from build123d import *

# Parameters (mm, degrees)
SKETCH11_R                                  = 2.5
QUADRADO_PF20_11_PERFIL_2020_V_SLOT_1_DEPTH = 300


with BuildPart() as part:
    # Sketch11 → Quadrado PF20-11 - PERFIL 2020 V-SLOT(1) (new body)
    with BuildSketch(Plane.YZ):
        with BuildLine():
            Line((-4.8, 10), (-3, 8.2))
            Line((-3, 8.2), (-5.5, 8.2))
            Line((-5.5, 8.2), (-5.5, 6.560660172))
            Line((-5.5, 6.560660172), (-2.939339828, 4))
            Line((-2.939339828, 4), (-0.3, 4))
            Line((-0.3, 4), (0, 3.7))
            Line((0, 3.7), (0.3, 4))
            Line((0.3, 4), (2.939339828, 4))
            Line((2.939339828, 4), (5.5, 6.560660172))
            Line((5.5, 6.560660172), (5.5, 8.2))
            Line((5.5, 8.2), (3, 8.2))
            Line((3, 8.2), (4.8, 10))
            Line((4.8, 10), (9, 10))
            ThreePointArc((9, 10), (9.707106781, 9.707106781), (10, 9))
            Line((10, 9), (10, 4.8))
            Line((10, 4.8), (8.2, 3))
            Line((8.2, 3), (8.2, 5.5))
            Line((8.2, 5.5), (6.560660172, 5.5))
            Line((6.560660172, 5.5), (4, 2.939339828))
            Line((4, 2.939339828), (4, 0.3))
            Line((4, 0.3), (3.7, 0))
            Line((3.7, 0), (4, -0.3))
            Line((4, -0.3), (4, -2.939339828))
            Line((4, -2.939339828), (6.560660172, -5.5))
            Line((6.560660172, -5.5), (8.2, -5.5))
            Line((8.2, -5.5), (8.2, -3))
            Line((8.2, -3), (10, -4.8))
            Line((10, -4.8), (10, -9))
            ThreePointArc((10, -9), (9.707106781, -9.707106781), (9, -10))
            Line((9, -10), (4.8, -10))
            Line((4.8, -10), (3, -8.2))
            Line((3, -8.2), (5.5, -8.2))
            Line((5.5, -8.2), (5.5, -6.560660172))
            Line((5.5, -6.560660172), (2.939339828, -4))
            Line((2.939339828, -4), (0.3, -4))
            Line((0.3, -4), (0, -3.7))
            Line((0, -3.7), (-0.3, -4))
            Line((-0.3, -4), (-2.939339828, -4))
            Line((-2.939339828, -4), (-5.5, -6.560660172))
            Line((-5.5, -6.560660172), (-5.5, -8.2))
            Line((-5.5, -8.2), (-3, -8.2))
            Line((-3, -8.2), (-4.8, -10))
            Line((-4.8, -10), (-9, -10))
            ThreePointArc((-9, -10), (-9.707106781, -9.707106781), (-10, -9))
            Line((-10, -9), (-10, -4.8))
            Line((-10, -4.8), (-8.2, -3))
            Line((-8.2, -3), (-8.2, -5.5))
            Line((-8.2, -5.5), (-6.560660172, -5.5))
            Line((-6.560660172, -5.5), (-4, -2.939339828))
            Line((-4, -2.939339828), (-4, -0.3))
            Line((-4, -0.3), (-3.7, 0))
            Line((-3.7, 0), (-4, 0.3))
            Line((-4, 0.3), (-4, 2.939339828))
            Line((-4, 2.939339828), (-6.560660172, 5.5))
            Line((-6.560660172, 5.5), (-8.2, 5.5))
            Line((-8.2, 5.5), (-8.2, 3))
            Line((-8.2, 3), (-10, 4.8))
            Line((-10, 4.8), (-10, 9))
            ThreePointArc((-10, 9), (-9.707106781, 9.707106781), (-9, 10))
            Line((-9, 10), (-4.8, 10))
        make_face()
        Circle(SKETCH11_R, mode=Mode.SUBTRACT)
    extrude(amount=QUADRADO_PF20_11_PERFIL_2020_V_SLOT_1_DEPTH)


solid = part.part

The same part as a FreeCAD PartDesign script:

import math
import FreeCAD as App
import Part
import Sketcher

V = App.Vector
Q = App.Units.Quantity

doc = App.newDocument("Part")
body = doc.addObject("PartDesign::Body", "Body")

# Sketch on YZ plane
sketch1 = doc.addObject("Sketcher::SketchObject", "Sketch")
body.addObject(sketch1)
sketch1.AttachmentSupport = (doc.YZ_Plane, [""])
sketch1.MapMode = "FlatFace"
sketch1.addGeometry(Part.LineSegment(V(-3, 8.2, 0), V(-4.8, 10, 0)), False)
sketch1.addGeometry(Part.LineSegment(V(-4.8, 10, 0), V(-9, 10, 0)), False)
sketch1.addGeometry(Part.ArcOfCircle(Part.Circle(V(-9, 9, 0), V(0, 0, 1), 1), math.radians(90), math.radians(180)), False)
sketch1.addGeometry(Part.LineSegment(V(-10, 9, 0), V(-10, 4.8, 0)), False)
sketch1.addGeometry(Part.LineSegment(V(-10, 4.8, 0), V(-8.2, 3, 0)), False)
sketch1.addGeometry(Part.LineSegment(V(-8.2, 3, 0), V(-8.2, 5.5, 0)), False)
sketch1.addGeometry(Part.LineSegment(V(-8.2, 5.5, 0), V(-6.56, 5.5, 0)), False)
sketch1.addGeometry(Part.LineSegment(V(-6.56, 5.5, 0), V(-4, 2.94, 0)), False)
sketch1.addGeometry(Part.LineSegment(V(-4, 2.94, 0), V(-4, 0.3, 0)), False)
sketch1.addGeometry(Part.LineSegment(V(-4, 0.3, 0), V(-3.7, 0, 0)), False)
sketch1.addGeometry(Part.LineSegment(V(-3.7, 0, 0), V(-4, -0.3, 0)), False)
sketch1.addGeometry(Part.LineSegment(V(-4, -0.3, 0), V(-4, -2.94, 0)), False)
sketch1.addGeometry(Part.LineSegment(V(-4, -2.94, 0), V(-6.56, -5.5, 0)), False)
sketch1.addGeometry(Part.LineSegment(V(-6.56, -5.5, 0), V(-8.2, -5.5, 0)), False)
sketch1.addGeometry(Part.LineSegment(V(-8.2, -5.5, 0), V(-8.2, -3, 0)), False)
sketch1.addGeometry(Part.LineSegment(V(-8.2, -3, 0), V(-10, -4.8, 0)), False)
sketch1.addGeometry(Part.LineSegment(V(-10, -4.8, 0), V(-10, -9, 0)), False)
sketch1.addGeometry(Part.ArcOfCircle(Part.Circle(V(-9, -9, 0), V(0, 0, 1), 1), math.radians(-180), math.radians(-90)), False)
sketch1.addGeometry(Part.LineSegment(V(-9, -10, 0), V(-4.8, -10, 0)), False)
sketch1.addGeometry(Part.LineSegment(V(-4.8, -10, 0), V(-3, -8.2, 0)), False)
sketch1.addGeometry(Part.LineSegment(V(-3, -8.2, 0), V(-5.5, -8.2, 0)), False)
sketch1.addGeometry(Part.LineSegment(V(-5.5, -8.2, 0), V(-5.5, -6.56, 0)), False)
sketch1.addGeometry(Part.LineSegment(V(-5.5, -6.56, 0), V(-2.94, -4, 0)), False)
sketch1.addGeometry(Part.LineSegment(V(-2.94, -4, 0), V(-0.3, -4, 0)), False)
sketch1.addGeometry(Part.LineSegment(V(-0.3, -4, 0), V(0, -3.7, 0)), False)
sketch1.addGeometry(Part.LineSegment(V(0, -3.7, 0), V(0.3, -4, 0)), False)
sketch1.addGeometry(Part.LineSegment(V(0.3, -4, 0), V(2.94, -4, 0)), False)
sketch1.addGeometry(Part.LineSegment(V(2.94, -4, 0), V(5.5, -6.56, 0)), False)
sketch1.addGeometry(Part.LineSegment(V(5.5, -6.56, 0), V(5.5, -8.2, 0)), False)
sketch1.addGeometry(Part.LineSegment(V(5.5, -8.2, 0), V(3, -8.2, 0)), False)
sketch1.addGeometry(Part.LineSegment(V(3, -8.2, 0), V(4.8, -10, 0)), False)
sketch1.addGeometry(Part.LineSegment(V(4.8, -10, 0), V(9, -10, 0)), False)
sketch1.addGeometry(Part.ArcOfCircle(Part.Circle(V(9, -9, 0), V(0, 0, 1), 1), math.radians(-90), math.radians(0)), False)
sketch1.addGeometry(Part.LineSegment(V(10, -9, 0), V(10, -4.8, 0)), False)
sketch1.addGeometry(Part.LineSegment(V(10, -4.8, 0), V(8.2, -3, 0)), False)
sketch1.addGeometry(Part.LineSegment(V(8.2, -3, 0), V(8.2, -5.5, 0)), False)
sketch1.addGeometry(Part.LineSegment(V(8.2, -5.5, 0), V(6.56, -5.5, 0)), False)
sketch1.addGeometry(Part.LineSegment(V(6.56, -5.5, 0), V(4, -2.94, 0)), False)
sketch1.addGeometry(Part.LineSegment(V(4, -2.94, 0), V(4, -0.3, 0)), False)
sketch1.addGeometry(Part.LineSegment(V(4, -0.3, 0), V(3.7, 0, 0)), False)
sketch1.addGeometry(Part.LineSegment(V(3.7, 0, 0), V(4, 0.3, 0)), False)
sketch1.addGeometry(Part.LineSegment(V(4, 0.3, 0), V(4, 2.94, 0)), False)
sketch1.addGeometry(Part.LineSegment(V(4, 2.94, 0), V(6.56, 5.5, 0)), False)
sketch1.addGeometry(Part.LineSegment(V(6.56, 5.5, 0), V(8.2, 5.5, 0)), False)
sketch1.addGeometry(Part.LineSegment(V(8.2, 5.5, 0), V(8.2, 3, 0)), False)
sketch1.addGeometry(Part.LineSegment(V(8.2, 3, 0), V(10, 4.8, 0)), False)
sketch1.addGeometry(Part.LineSegment(V(10, 4.8, 0), V(10, 9, 0)), False)
sketch1.addGeometry(Part.ArcOfCircle(Part.Circle(V(9, 9, 0), V(0, 0, 1), 1), math.radians(0), math.radians(90)), False)
sketch1.addGeometry(Part.LineSegment(V(9, 10, 0), V(4.8, 10, 0)), False)
sketch1.addGeometry(Part.LineSegment(V(4.8, 10, 0), V(3, 8.2, 0)), False)
sketch1.addGeometry(Part.LineSegment(V(3, 8.2, 0), V(5.5, 8.2, 0)), False)
sketch1.addGeometry(Part.LineSegment(V(5.5, 8.2, 0), V(5.5, 6.56, 0)), False)
sketch1.addGeometry(Part.LineSegment(V(5.5, 6.56, 0), V(2.94, 4, 0)), False)
sketch1.addGeometry(Part.LineSegment(V(2.94, 4, 0), V(0.3, 4, 0)), False)
sketch1.addGeometry(Part.LineSegment(V(0.3, 4, 0), V(0, 3.7, 0)), False)
sketch1.addGeometry(Part.LineSegment(V(0, 3.7, 0), V(-0.3, 4, 0)), False)
sketch1.addGeometry(Part.LineSegment(V(-0.3, 4, 0), V(-2.94, 4, 0)), False)
sketch1.addGeometry(Part.LineSegment(V(-2.94, 4, 0), V(-5.5, 6.56, 0)), False)
sketch1.addGeometry(Part.LineSegment(V(-5.5, 6.56, 0), V(-5.5, 8.2, 0)), False)
sketch1.addGeometry(Part.LineSegment(V(-5.5, 8.2, 0), V(-3, 8.2, 0)), False)
sketch1.addGeometry(Part.Circle(V(0, 0, 0), V(0, 0, 1), 2.5), False)
sketch1.addConstraint(Sketcher.Constraint("Coincident", 0, 2, 1, 1))
sketch1.addConstraint(Sketcher.Constraint("Tangent", 1, 2, 2, 1))
sketch1.addConstraint(Sketcher.Constraint("Tangent", 2, 2, 3, 1))
sketch1.addConstraint(Sketcher.Constraint("Coincident", 3, 2, 4, 1))
sketch1.addConstraint(Sketcher.Constraint("Coincident", 4, 2, 5, 1))
sketch1.addConstraint(Sketcher.Constraint("Coincident", 5, 2, 6, 1))
sketch1.addConstraint(Sketcher.Constraint("Coincident", 6, 2, 7, 1))
sketch1.addConstraint(Sketcher.Constraint("Coincident", 7, 2, 8, 1))
sketch1.addConstraint(Sketcher.Constraint("Coincident", 8, 2, 9, 1))
sketch1.addConstraint(Sketcher.Constraint("Coincident", 9, 2, 10, 1))
sketch1.addConstraint(Sketcher.Constraint("Coincident", 10, 2, 11, 1))
sketch1.addConstraint(Sketcher.Constraint("Coincident", 11, 2, 12, 1))
sketch1.addConstraint(Sketcher.Constraint("Coincident", 12, 2, 13, 1))
sketch1.addConstraint(Sketcher.Constraint("Coincident", 13, 2, 14, 1))
sketch1.addConstraint(Sketcher.Constraint("Coincident", 14, 2, 15, 1))
sketch1.addConstraint(Sketcher.Constraint("Coincident", 15, 2, 16, 1))
sketch1.addConstraint(Sketcher.Constraint("Tangent", 16, 2, 17, 1))
sketch1.addConstraint(Sketcher.Constraint("Tangent", 17, 2, 18, 1))
sketch1.addConstraint(Sketcher.Constraint("Coincident", 18, 2, 19, 1))
sketch1.addConstraint(Sketcher.Constraint("Coincident", 19, 2, 20, 1))
sketch1.addConstraint(Sketcher.Constraint("Coincident", 20, 2, 21, 1))
sketch1.addConstraint(Sketcher.Constraint("Coincident", 21, 2, 22, 1))
sketch1.addConstraint(Sketcher.Constraint("Coincident", 22, 2, 23, 1))
sketch1.addConstraint(Sketcher.Constraint("Coincident", 23, 2, 24, 1))
sketch1.addConstraint(Sketcher.Constraint("Coincident", 24, 2, 25, 1))
sketch1.addConstraint(Sketcher.Constraint("Coincident", 25, 2, 26, 1))
sketch1.addConstraint(Sketcher.Constraint("Coincident", 26, 2, 27, 1))
sketch1.addConstraint(Sketcher.Constraint("Coincident", 27, 2, 28, 1))
sketch1.addConstraint(Sketcher.Constraint("Coincident", 28, 2, 29, 1))
sketch1.addConstraint(Sketcher.Constraint("Coincident", 29, 2, 30, 1))
sketch1.addConstraint(Sketcher.Constraint("Coincident", 30, 2, 31, 1))
sketch1.addConstraint(Sketcher.Constraint("Tangent", 31, 2, 32, 1))
sketch1.addConstraint(Sketcher.Constraint("Tangent", 32, 2, 33, 1))
sketch1.addConstraint(Sketcher.Constraint("Coincident", 33, 2, 34, 1))
sketch1.addConstraint(Sketcher.Constraint("Coincident", 34, 2, 35, 1))
sketch1.addConstraint(Sketcher.Constraint("Coincident", 35, 2, 36, 1))
sketch1.addConstraint(Sketcher.Constraint("Coincident", 36, 2, 37, 1))
sketch1.addConstraint(Sketcher.Constraint("Coincident", 37, 2, 38, 1))
sketch1.addConstraint(Sketcher.Constraint("Coincident", 38, 2, 39, 1))
sketch1.addConstraint(Sketcher.Constraint("Coincident", 39, 2, 40, 1))
sketch1.addConstraint(Sketcher.Constraint("Coincident", 40, 2, 41, 1))
sketch1.addConstraint(Sketcher.Constraint("Coincident", 41, 2, 42, 1))
sketch1.addConstraint(Sketcher.Constraint("Coincident", 42, 2, 43, 1))
sketch1.addConstraint(Sketcher.Constraint("Coincident", 43, 2, 44, 1))
sketch1.addConstraint(Sketcher.Constraint("Coincident", 44, 2, 45, 1))
sketch1.addConstraint(Sketcher.Constraint("Coincident", 45, 2, 46, 1))
sketch1.addConstraint(Sketcher.Constraint("Tangent", 46, 2, 47, 1))
sketch1.addConstraint(Sketcher.Constraint("Tangent", 47, 2, 48, 1))
sketch1.addConstraint(Sketcher.Constraint("Coincident", 48, 2, 49, 1))
sketch1.addConstraint(Sketcher.Constraint("Coincident", 49, 2, 50, 1))
sketch1.addConstraint(Sketcher.Constraint("Coincident", 50, 2, 51, 1))
sketch1.addConstraint(Sketcher.Constraint("Coincident", 51, 2, 52, 1))
sketch1.addConstraint(Sketcher.Constraint("Coincident", 52, 2, 53, 1))
sketch1.addConstraint(Sketcher.Constraint("Coincident", 53, 2, 54, 1))
sketch1.addConstraint(Sketcher.Constraint("Coincident", 54, 2, 55, 1))
sketch1.addConstraint(Sketcher.Constraint("Coincident", 55, 2, 56, 1))
sketch1.addConstraint(Sketcher.Constraint("Coincident", 56, 2, 57, 1))
sketch1.addConstraint(Sketcher.Constraint("Coincident", 57, 2, 58, 1))
sketch1.addConstraint(Sketcher.Constraint("Coincident", 58, 2, 59, 1))
sketch1.addConstraint(Sketcher.Constraint("Coincident", 59, 2, 0, 1))
sketch1.addConstraint(Sketcher.Constraint("Horizontal", 1))
sketch1.addConstraint(Sketcher.Constraint("Vertical", 3))
sketch1.addConstraint(Sketcher.Constraint("Vertical", 5))
sketch1.addConstraint(Sketcher.Constraint("Horizontal", 6))
sketch1.addConstraint(Sketcher.Constraint("Vertical", 8))
sketch1.addConstraint(Sketcher.Constraint("Vertical", 11))
sketch1.addConstraint(Sketcher.Constraint("Horizontal", 13))
sketch1.addConstraint(Sketcher.Constraint("Vertical", 14))
sketch1.addConstraint(Sketcher.Constraint("Vertical", 16))
sketch1.addConstraint(Sketcher.Constraint("Horizontal", 18))
sketch1.addConstraint(Sketcher.Constraint("Horizontal", 20))
sketch1.addConstraint(Sketcher.Constraint("Vertical", 21))
sketch1.addConstraint(Sketcher.Constraint("Horizontal", 23))
sketch1.addConstraint(Sketcher.Constraint("Horizontal", 26))
sketch1.addConstraint(Sketcher.Constraint("Vertical", 28))
sketch1.addConstraint(Sketcher.Constraint("Horizontal", 29))
sketch1.addConstraint(Sketcher.Constraint("Horizontal", 31))
sketch1.addConstraint(Sketcher.Constraint("Vertical", 33))
sketch1.addConstraint(Sketcher.Constraint("Vertical", 35))
sketch1.addConstraint(Sketcher.Constraint("Horizontal", 36))
sketch1.addConstraint(Sketcher.Constraint("Vertical", 38))
sketch1.addConstraint(Sketcher.Constraint("Vertical", 41))
sketch1.addConstraint(Sketcher.Constraint("Horizontal", 43))
sketch1.addConstraint(Sketcher.Constraint("Vertical", 44))
sketch1.addConstraint(Sketcher.Constraint("Vertical", 46))
sketch1.addConstraint(Sketcher.Constraint("Horizontal", 48))
sketch1.addConstraint(Sketcher.Constraint("Horizontal", 50))
sketch1.addConstraint(Sketcher.Constraint("Vertical", 51))
sketch1.addConstraint(Sketcher.Constraint("Horizontal", 53))
sketch1.addConstraint(Sketcher.Constraint("Horizontal", 56))
sketch1.addConstraint(Sketcher.Constraint("Vertical", 58))
sketch1.addConstraint(Sketcher.Constraint("Horizontal", 59))
sketch1.addConstraint(Sketcher.Constraint("Coincident", 60, 3, -1, 1))
sketch1.addConstraint(Sketcher.Constraint("Equal", 2, 17))
sketch1.addConstraint(Sketcher.Constraint("Equal", 17, 32))
sketch1.addConstraint(Sketcher.Constraint("Equal", 32, 47))
sketch1.addConstraint(Sketcher.Constraint("Symmetric", 2, 3, 32, 3, -1, 1))
sketch1.addConstraint(Sketcher.Constraint("Symmetric", 17, 3, 47, 3, -1, 1))
sketch1.addConstraint(Sketcher.Constraint("Symmetric", 4, 2, 34, 2, -1, 1))
sketch1.addConstraint(Sketcher.Constraint("Symmetric", 6, 2, 36, 2, -1, 1))
sketch1.addConstraint(Sketcher.Constraint("Symmetric", 7, 2, 37, 2, -1, 1))
sketch1.addConstraint(Sketcher.Constraint("Symmetric", 9, 2, 39, 2, -1, 1))
sketch1.addConstraint(Sketcher.Constraint("Symmetric", 10, 2, 40, 2, -1, 1))
sketch1.addConstraint(Sketcher.Constraint("Symmetric", 12, 2, 42, 2, -1, 1))
sketch1.addConstraint(Sketcher.Constraint("Symmetric", 14, 2, 44, 2, -1, 1))
sketch1.addConstraint(Sketcher.Constraint("Symmetric", 19, 2, 49, 2, -1, 1))
sketch1.addConstraint(Sketcher.Constraint("Symmetric", 21, 2, 51, 2, -1, 1))
sketch1.addConstraint(Sketcher.Constraint("Symmetric", 22, 2, 52, 2, -1, 1))
sketch1.addConstraint(Sketcher.Constraint("Symmetric", 24, 2, 54, 2, -1, 1))
sketch1.addConstraint(Sketcher.Constraint("Symmetric", 25, 2, 55, 2, -1, 1))
sketch1.addConstraint(Sketcher.Constraint("Symmetric", 27, 2, 57, 2, -1, 1))
sketch1.addConstraint(Sketcher.Constraint("Symmetric", 29, 2, 59, 2, -1, 1))
sketch1.addConstraint(Sketcher.Constraint("Symmetric", 17, 3, 32, 3, -2))
sketch1.addConstraint(Sketcher.Constraint("Symmetric", 23, 2, 25, 2, -2))
sketch1.addConstraint(Sketcher.Constraint("Symmetric", 21, 2, 27, 2, -2))
sketch1.addConstraint(Sketcher.Constraint("Symmetric", 19, 2, 29, 2, -2))
sketch1.addConstraint(Sketcher.Constraint("Symmetric", 14, 2, 34, 2, -2))
sketch1.addConstraint(Sketcher.Constraint("Symmetric", 12, 2, 36, 2, -2))
sketch1.addConstraint(Sketcher.Constraint("Symmetric", 11, 2, 37, 2, -2))
sketch1.addConstraint(Sketcher.Constraint("PointOnObject", 9, 2, -1))
sketch1.addConstraint(Sketcher.Constraint("PointOnObject", 24, 2, -2))
sketch1.addConstraint(Sketcher.Constraint("Parallel", 0, 4))
sketch1.addConstraint(Sketcher.Constraint("Parallel", 4, 7))
sketch1.addConstraint(Sketcher.Constraint("Parallel", 7, 9))
sketch1.addConstraint(Sketcher.Constraint("Perpendicular", 9, 10))
sketch1.addConstraint(Sketcher.Constraint("Parallel", 10, 12))
sketch1.addConstraint(Sketcher.Constraint("Parallel", 12, 15))
sketch1.addConstraint(Sketcher.Constraint("Parallel", 15, 19))
sketch1.addConstraint(Sketcher.Constraint("Parallel", 19, 22))
sketch1.addConstraint(Sketcher.Constraint("Parallel", 22, 24))
sketch1.addConstraint(Sketcher.Constraint("Parallel", 25, 27))
sketch1.addConstraint(Sketcher.Constraint("Parallel", 27, 30))
sketch1.addConstraint(Sketcher.Constraint("Parallel", 30, 34))
sketch1.addConstraint(Sketcher.Constraint("Parallel", 37, 39))
sketch1.addConstraint(Sketcher.Constraint("Parallel", 40, 42))
sketch1.addConstraint(Sketcher.Constraint("Parallel", 42, 45))
sketch1.addConstraint(Sketcher.Constraint("Parallel", 45, 49))
sketch1.addConstraint(Sketcher.Constraint("Parallel", 52, 54))
sketch1.addConstraint(Sketcher.Constraint("Parallel", 55, 57))
sketch1.addConstraint(Sketcher.Constraint("Equal", 48, 3))
sketch1.addConstraint(Sketcher.Constraint("Equal", 59, 5))
sketch1.addConstraint(Sketcher.Constraint("Equal", 56, 8))
sketch1.addConstraint(Sketcher.Constraint("Equal", 43, 21))
sketch1.addConstraint(Sketcher.Constraint("Equal", 0, 4))
sketch1.addConstraint(Sketcher.Constraint("Equal", 12, 22))
sketch1.addConstraint(Sketcher.Constraint("Equal", 10, 24))
sketch1.addConstraint(Sketcher.Constraint("Diameter", 60, Q("5 mm")))
sketch1.addConstraint(Sketcher.Constraint("Radius", 2, Q("1 mm")))
sketch1.addConstraint(Sketcher.Constraint("DistanceX", 1, 2, 1, 1, Q("4.2 mm")))
sketch1.addConstraint(Sketcher.Constraint("DistanceX", 20, 2, 20, 1, Q("2.5 mm")))
sketch1.addConstraint(Sketcher.Constraint("DistanceX", 2, 3, -1, 1, Q("9 mm")))
sketch1.addConstraint(Sketcher.Constraint("DistanceY", -1, 1, 4, 2, Q("3 mm")))
sketch1.addConstraint(Sketcher.Constraint("DistanceX", 7, 2, -1, 1, Q("4 mm")))
sketch1.addConstraint(Sketcher.Constraint("DistanceY", -1, 1, 8, 2, Q("0.3 mm")))
sketch1.addConstraint(Sketcher.Constraint("DistanceX", 6, 1, 6, 2, Q("1.63934 mm")))
pad1 = doc.addObject("PartDesign::Pad", "Pad")
body.addObject(pad1)
pad1.Profile = sketch1
pad1.Length = 300

doc.recompute()
